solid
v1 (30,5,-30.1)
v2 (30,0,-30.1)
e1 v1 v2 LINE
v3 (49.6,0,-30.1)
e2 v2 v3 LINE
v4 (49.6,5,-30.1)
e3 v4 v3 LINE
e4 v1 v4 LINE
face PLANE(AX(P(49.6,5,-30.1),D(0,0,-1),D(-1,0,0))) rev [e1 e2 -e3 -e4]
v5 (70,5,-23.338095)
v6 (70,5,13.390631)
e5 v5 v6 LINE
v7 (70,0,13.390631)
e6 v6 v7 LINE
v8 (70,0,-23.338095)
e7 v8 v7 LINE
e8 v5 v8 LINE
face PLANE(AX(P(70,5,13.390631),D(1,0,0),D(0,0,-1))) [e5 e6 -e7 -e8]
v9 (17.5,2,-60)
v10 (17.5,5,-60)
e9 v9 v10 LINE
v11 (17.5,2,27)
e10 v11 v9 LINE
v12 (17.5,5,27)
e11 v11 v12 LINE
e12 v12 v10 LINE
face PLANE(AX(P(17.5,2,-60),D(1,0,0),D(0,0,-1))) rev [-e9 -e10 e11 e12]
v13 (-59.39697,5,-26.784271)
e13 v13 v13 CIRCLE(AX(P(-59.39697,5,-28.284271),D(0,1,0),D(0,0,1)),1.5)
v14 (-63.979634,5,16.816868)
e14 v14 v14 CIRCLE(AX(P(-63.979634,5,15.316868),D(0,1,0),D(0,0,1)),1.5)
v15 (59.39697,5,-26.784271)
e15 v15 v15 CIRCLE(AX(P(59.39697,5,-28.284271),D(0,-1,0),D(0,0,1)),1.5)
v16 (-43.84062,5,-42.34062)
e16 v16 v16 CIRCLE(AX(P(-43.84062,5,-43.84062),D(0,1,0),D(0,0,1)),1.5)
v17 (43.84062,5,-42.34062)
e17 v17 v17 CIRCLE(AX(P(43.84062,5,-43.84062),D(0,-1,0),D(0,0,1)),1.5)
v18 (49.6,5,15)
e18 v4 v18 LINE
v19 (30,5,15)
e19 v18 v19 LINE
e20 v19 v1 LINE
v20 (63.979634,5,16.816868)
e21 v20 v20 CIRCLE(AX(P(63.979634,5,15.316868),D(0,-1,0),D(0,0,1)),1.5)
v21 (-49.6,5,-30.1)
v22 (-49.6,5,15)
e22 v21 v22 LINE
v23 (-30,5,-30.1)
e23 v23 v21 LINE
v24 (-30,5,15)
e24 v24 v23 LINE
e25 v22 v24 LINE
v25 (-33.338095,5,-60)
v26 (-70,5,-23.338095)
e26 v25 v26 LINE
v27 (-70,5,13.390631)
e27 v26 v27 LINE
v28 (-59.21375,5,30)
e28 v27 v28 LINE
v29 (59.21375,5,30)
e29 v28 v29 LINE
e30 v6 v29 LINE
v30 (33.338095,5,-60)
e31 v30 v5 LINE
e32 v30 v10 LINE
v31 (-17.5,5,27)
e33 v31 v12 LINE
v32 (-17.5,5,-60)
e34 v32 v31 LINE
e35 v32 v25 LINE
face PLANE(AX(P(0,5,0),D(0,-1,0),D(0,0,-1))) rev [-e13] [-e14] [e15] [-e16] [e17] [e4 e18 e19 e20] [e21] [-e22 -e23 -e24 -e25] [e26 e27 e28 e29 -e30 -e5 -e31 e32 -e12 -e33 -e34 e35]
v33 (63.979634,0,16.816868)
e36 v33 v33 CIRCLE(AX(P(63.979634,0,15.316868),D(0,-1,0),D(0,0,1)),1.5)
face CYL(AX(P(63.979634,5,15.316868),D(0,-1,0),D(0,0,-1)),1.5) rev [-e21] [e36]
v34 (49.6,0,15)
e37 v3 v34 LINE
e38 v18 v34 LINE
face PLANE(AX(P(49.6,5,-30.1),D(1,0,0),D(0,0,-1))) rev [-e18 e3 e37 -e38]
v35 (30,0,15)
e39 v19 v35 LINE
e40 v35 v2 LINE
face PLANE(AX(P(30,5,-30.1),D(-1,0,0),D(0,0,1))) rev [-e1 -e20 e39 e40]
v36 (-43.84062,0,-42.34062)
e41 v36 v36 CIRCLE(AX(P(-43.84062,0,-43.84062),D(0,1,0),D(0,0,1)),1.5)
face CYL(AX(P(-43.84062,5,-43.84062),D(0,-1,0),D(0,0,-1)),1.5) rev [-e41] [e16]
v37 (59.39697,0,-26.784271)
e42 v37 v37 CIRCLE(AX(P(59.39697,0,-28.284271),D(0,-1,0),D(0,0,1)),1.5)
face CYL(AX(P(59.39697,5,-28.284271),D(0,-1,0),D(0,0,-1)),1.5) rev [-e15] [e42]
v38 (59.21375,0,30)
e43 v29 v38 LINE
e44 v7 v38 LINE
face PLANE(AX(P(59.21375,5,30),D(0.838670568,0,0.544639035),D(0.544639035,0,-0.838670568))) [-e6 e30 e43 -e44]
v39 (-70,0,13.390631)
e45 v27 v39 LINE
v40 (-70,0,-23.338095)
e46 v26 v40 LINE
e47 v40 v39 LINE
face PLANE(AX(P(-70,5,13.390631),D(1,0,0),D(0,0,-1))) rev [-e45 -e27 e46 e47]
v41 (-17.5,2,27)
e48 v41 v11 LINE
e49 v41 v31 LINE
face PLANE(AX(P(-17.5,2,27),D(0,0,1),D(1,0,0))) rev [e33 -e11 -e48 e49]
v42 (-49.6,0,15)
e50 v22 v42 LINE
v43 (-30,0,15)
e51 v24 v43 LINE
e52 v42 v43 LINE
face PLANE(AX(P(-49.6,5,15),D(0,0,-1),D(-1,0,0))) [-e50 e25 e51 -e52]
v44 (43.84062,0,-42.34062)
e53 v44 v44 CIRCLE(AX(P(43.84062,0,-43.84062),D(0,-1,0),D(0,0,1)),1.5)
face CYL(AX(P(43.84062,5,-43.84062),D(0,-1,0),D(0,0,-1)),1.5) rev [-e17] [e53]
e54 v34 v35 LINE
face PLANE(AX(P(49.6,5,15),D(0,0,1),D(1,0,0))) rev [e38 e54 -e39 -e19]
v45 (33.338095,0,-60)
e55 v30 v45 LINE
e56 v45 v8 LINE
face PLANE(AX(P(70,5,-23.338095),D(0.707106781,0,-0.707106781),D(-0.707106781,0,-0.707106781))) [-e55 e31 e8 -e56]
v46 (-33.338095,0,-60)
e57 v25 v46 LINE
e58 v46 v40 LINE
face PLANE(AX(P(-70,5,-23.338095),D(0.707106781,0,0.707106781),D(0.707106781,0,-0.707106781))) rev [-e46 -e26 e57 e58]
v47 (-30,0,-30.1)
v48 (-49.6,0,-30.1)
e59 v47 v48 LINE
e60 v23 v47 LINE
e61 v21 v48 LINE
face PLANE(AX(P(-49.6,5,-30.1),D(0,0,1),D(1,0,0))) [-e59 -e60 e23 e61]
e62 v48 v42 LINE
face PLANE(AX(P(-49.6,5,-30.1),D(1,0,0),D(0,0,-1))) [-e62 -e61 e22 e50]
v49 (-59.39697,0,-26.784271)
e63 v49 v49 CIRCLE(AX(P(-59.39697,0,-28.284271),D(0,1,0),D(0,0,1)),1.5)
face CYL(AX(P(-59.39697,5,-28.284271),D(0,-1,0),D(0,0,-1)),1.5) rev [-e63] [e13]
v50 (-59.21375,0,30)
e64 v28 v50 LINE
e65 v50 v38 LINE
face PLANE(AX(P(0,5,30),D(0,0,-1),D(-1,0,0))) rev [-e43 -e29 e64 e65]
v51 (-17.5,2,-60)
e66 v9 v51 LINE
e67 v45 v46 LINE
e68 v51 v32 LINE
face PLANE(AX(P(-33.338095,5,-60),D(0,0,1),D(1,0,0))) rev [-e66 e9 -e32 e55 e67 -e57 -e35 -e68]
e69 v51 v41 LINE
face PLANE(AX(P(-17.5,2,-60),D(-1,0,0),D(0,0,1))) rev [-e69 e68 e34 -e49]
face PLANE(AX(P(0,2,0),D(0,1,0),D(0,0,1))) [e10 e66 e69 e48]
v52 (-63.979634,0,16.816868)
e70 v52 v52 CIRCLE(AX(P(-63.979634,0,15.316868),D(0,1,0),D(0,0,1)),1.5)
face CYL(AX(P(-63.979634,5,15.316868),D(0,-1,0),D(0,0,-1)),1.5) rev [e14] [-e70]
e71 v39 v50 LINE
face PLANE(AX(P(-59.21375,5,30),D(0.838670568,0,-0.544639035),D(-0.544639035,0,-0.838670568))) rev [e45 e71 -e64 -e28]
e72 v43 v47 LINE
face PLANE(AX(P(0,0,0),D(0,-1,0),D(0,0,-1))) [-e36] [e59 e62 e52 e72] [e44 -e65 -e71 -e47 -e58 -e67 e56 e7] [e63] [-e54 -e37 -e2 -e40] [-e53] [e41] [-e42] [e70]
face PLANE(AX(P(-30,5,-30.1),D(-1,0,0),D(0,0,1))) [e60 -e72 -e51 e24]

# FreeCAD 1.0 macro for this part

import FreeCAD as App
import Part
import Sketcher
from FreeCAD import Vector
Q = App.Units.Quantity

doc = App.newDocument("Part")
params = doc.addObject("Spreadsheet::Sheet", "Params")
for row, (alias, value) in enumerate([
    ("sketch1_diameter", "3 mm"),
    ("sketch1_height", "90 mm"),
    ("sketch1_width", "19.6 mm"),
    ("sketch1_height2", "45.1 mm"),
    ("pad1_length", "5 mm"),
    ("sketch2_width", "35 mm"),
    ("sketch2_height", "87 mm"),
    ("pocket1_length", "3 mm"),
], start=1):
    params.set(f"A{row}", alias)
    params.set(f"B{row}", "=" + value)
    params.setAlias(f"B{row}", alias)

body = doc.addObject("PartDesign::Body", "Body")

sketch1 = doc.addObject("Sketcher::SketchObject", "Sketch")
body.addObject(sketch1)
sketch1.AttachmentSupport = (doc.XZ_Plane, [""])
sketch1.MapMode = "FlatFace"
sketch1.addGeometry(Part.LineSegment(Vector(-70, 13.390631, 0), Vector(-59.21375, 30, 0)), False)
sketch1.addGeometry(Part.LineSegment(Vector(-59.21375, 30, 0), Vector(0, 30, 0)), False)
sketch1.addGeometry(Part.LineSegment(Vector(0, 30, 0), Vector(0, -60, 0)), False)
sketch1.addGeometry(Part.LineSegment(Vector(0, -60, 0), Vector(-33.338095, -60, 0)), False)
sketch1.addGeometry(Part.LineSegment(Vector(-33.338095, -60, 0), Vector(-70, -23.338095, 0)), False)
sketch1.addGeometry(Part.LineSegment(Vector(-70, -23.338095, 0), Vector(-70, 13.390631, 0)), False)
sketch1.addGeometry(Part.LineSegment(Vector(-49.6, 15, 0), Vector(-49.6, -30.1, 0)), False)
sketch1.addGeometry(Part.LineSegment(Vector(-49.6, -30.1, 0), Vector(-30, -30.1, 0)), False)
sketch1.addGeometry(Part.LineSegment(Vector(-30, -30.1, 0), Vector(-30, 15, 0)), False)
sketch1.addGeometry(Part.LineSegment(Vector(-30, 15, 0), Vector(-49.6, 15, 0)), False)
sketch1.addGeometry(Part.Circle(Vector(-63.979634, 15.316868, 0), Vector(0, 0, 1), 1.5), False)
sketch1.addGeometry(Part.Circle(Vector(-43.84062, -43.84062, 0), Vector(0, 0, 1), 1.5), False)
sketch1.addGeometry(Part.Circle(Vector(-59.39697, -28.284271, 0), Vector(0, 0, 1), 1.5), False)
sketch1.addConstraint(Sketcher.Constraint("Coincident", 0, 2, 1, 1))
sketch1.addConstraint(Sketcher.Constraint("Coincident", 1, 2, 2, 1))
sketch1.addConstraint(Sketcher.Constraint("Coincident", 2, 2, 3, 1))
sketch1.addConstraint(Sketcher.Constraint("Coincident", 3, 2, 4, 1))
sketch1.addConstraint(Sketcher.Constraint("Coincident", 4, 2, 5, 1))
sketch1.addConstraint(Sketcher.Constraint("Coincident", 5, 2, 0, 1))
sketch1.addConstraint(Sketcher.Constraint("Coincident", 6, 2, 7, 1))
sketch1.addConstraint(Sketcher.Constraint("Coincident", 7, 2, 8, 1))
sketch1.addConstraint(Sketcher.Constraint("Coincident", 8, 2, 9, 1))
sketch1.addConstraint(Sketcher.Constraint("Coincident", 9, 2, 6, 1))
sketch1.addConstraint(Sketcher.Constraint("Horizontal", 1))
sketch1.addConstraint(Sketcher.Constraint("Vertical", 2))
sketch1.addConstraint(Sketcher.Constraint("Horizontal", 3))
sketch1.addConstraint(Sketcher.Constraint("Vertical", 5))
sketch1.addConstraint(Sketcher.Constraint("Vertical", 6))
sketch1.addConstraint(Sketcher.Constraint("Horizontal", 7))
sketch1.addConstraint(Sketcher.Constraint("Vertical", 8))
sketch1.addConstraint(Sketcher.Constraint("Horizontal", 9))
sketch1.addConstraint(Sketcher.Constraint("Equal", 10, 11))
sketch1.addConstraint(Sketcher.Constraint("Equal", 11, 12))
sketch1.addConstraint(Sketcher.Constraint("PointOnObject", 1, 2, -2))
sketch1.addConstraint(Sketcher.Constraint("Diameter", 10, 3.0))
sketch1.addConstraint(Sketcher.Constraint("DistanceY", 2, 2, 2, 1, 90.0))
sketch1.addConstraint(Sketcher.Constraint("Angle", 0, Q("57 deg")))
sketch1.addConstraint(Sketcher.Constraint("Angle", 4, Q("135 deg")))
sketch1.addConstraint(Sketcher.Constraint("DistanceX", 7, 1, 7, 2, 19.6))
sketch1.addConstraint(Sketcher.Constraint("DistanceY", 6, 2, 6, 1, 45.1))
sketch1.addConstraint(Sketcher.Constraint("DistanceY", -1, 1, 0, 2, 30.0))
sketch1.addConstraint(Sketcher.Constraint("DistanceX", 4, 2, -1, 1, 70.0))
sketch1.addConstraint(Sketcher.Constraint("DistanceX", 7, 2, -1, 1, 30.0))
sketch1.addConstraint(Sketcher.Constraint("DistanceY", -1, 1, 8, 2, 15.0))
sketch1.addConstraint(Sketcher.Constraint("DistanceX", 1, 1, 1, 2, 59.21375))
sketch1.addConstraint(Sketcher.Constraint("DistanceX", 3, 2, 3, 1, 33.338095))
sketch1.addConstraint(Sketcher.Constraint("DistanceX", 11, 3, -1, 1, 43.84062))
sketch1.addConstraint(Sketcher.Constraint("DistanceY", 11, 3, -1, 1, 43.84062))
sketch1.addConstraint(Sketcher.Constraint("DistanceX", 12, 3, -1, 1, 59.39697))
sketch1.addConstraint(Sketcher.Constraint("DistanceY", 12, 3, -1, 1, 28.284271))
sketch1.addConstraint(Sketcher.Constraint("DistanceY", 11, 3, 10, 3, 59.157488))
sketch1.addConstraint(Sketcher.Constraint("DistanceX", 10, 3, 3, 2, 30.641539))
sketch1.setExpression("Constraints[21]", "Params.sketch1_diameter")
sketch1.setExpression("Constraints[22]", "Params.sketch1_height")
sketch1.setExpression("Constraints[25]", "Params.sketch1_width")
sketch1.setExpression("Constraints[26]", "Params.sketch1_height2")
pad1 = doc.addObject("PartDesign::Pad", "Pad")
body.addObject(pad1)
pad1.Profile = sketch1
pad1.setExpression("Length", "Params.pad1_length")
pad1.Reversed = True
doc.recompute()

mirrored = doc.addObject("PartDesign::Mirrored", "Mirrored")
body.addObject(mirrored)
mirrored.Originals = [pad1]
mirrored.MirrorPlane = (doc.YZ_Plane, [""])
body.Tip = mirrored

sketch2 = doc.addObject("Sketcher::SketchObject", "Sketch001")
body.addObject(sketch2)
sketch2.AttachmentSupport = (doc.XZ_Plane, [""])
sketch2.MapMode = "FlatFace"
sketch2.AttachmentOffset = App.Placement(Vector(0, 0, -5), App.Rotation())
sketch2.addGeometry(Part.LineSegment(Vector(-17.5, -60, 0), Vector(-17.5, 27, 0)), False)
sketch2.addGeometry(Part.LineSegment(Vector(-17.5, 27, 0), Vector(17.5, 27, 0)), False)
sketch2.addGeometry(Part.LineSegment(Vector(17.5, 27, 0), Vector(17.5, -60, 0)), False)
sketch2.addGeometry(Part.LineSegment(Vector(17.5, -60, 0), Vector(-17.5, -60, 0)), False)
sketch2.addConstraint(Sketcher.Constraint("Coincident", 0, 2, 1, 1))
sketch2.addConstraint(Sketcher.Constraint("Coincident", 1, 2, 2, 1))
sketch2.addConstraint(Sketcher.Constraint("Coincident", 2, 2, 3, 1))
sketch2.addConstraint(Sketcher.Constraint("Coincident", 3, 2, 0, 1))
sketch2.addConstraint(Sketcher.Constraint("Vertical", 0))
sketch2.addConstraint(Sketcher.Constraint("Horizontal", 1))
sketch2.addConstraint(Sketcher.Constraint("Vertical", 2))
sketch2.addConstraint(Sketcher.Constraint("Horizontal", 3))
sketch2.addConstraint(Sketcher.Constraint("DistanceX", 1, 1, 1, 2, 35.0))
sketch2.addConstraint(Sketcher.Constraint("DistanceY", 0, 1, 0, 2, 87.0))
sketch2.addConstraint(Sketcher.Constraint("DistanceY", -1, 1, 0, 2, 27.0))
sketch2.addConstraint(Sketcher.Constraint("DistanceX", 0, 2, -1, 1, 17.5))
sketch2.setExpression("Constraints[8]", "Params.sketch2_width")
sketch2.setExpression("Constraints[9]", "Params.sketch2_height")
pocket1 = doc.addObject("PartDesign::Pocket", "Pocket")
body.addObject(pocket1)
pocket1.Profile = sketch2
pocket1.setExpression("Length", "Params.pocket1_length")
pocket1.Reversed = True

doc.recompute()
